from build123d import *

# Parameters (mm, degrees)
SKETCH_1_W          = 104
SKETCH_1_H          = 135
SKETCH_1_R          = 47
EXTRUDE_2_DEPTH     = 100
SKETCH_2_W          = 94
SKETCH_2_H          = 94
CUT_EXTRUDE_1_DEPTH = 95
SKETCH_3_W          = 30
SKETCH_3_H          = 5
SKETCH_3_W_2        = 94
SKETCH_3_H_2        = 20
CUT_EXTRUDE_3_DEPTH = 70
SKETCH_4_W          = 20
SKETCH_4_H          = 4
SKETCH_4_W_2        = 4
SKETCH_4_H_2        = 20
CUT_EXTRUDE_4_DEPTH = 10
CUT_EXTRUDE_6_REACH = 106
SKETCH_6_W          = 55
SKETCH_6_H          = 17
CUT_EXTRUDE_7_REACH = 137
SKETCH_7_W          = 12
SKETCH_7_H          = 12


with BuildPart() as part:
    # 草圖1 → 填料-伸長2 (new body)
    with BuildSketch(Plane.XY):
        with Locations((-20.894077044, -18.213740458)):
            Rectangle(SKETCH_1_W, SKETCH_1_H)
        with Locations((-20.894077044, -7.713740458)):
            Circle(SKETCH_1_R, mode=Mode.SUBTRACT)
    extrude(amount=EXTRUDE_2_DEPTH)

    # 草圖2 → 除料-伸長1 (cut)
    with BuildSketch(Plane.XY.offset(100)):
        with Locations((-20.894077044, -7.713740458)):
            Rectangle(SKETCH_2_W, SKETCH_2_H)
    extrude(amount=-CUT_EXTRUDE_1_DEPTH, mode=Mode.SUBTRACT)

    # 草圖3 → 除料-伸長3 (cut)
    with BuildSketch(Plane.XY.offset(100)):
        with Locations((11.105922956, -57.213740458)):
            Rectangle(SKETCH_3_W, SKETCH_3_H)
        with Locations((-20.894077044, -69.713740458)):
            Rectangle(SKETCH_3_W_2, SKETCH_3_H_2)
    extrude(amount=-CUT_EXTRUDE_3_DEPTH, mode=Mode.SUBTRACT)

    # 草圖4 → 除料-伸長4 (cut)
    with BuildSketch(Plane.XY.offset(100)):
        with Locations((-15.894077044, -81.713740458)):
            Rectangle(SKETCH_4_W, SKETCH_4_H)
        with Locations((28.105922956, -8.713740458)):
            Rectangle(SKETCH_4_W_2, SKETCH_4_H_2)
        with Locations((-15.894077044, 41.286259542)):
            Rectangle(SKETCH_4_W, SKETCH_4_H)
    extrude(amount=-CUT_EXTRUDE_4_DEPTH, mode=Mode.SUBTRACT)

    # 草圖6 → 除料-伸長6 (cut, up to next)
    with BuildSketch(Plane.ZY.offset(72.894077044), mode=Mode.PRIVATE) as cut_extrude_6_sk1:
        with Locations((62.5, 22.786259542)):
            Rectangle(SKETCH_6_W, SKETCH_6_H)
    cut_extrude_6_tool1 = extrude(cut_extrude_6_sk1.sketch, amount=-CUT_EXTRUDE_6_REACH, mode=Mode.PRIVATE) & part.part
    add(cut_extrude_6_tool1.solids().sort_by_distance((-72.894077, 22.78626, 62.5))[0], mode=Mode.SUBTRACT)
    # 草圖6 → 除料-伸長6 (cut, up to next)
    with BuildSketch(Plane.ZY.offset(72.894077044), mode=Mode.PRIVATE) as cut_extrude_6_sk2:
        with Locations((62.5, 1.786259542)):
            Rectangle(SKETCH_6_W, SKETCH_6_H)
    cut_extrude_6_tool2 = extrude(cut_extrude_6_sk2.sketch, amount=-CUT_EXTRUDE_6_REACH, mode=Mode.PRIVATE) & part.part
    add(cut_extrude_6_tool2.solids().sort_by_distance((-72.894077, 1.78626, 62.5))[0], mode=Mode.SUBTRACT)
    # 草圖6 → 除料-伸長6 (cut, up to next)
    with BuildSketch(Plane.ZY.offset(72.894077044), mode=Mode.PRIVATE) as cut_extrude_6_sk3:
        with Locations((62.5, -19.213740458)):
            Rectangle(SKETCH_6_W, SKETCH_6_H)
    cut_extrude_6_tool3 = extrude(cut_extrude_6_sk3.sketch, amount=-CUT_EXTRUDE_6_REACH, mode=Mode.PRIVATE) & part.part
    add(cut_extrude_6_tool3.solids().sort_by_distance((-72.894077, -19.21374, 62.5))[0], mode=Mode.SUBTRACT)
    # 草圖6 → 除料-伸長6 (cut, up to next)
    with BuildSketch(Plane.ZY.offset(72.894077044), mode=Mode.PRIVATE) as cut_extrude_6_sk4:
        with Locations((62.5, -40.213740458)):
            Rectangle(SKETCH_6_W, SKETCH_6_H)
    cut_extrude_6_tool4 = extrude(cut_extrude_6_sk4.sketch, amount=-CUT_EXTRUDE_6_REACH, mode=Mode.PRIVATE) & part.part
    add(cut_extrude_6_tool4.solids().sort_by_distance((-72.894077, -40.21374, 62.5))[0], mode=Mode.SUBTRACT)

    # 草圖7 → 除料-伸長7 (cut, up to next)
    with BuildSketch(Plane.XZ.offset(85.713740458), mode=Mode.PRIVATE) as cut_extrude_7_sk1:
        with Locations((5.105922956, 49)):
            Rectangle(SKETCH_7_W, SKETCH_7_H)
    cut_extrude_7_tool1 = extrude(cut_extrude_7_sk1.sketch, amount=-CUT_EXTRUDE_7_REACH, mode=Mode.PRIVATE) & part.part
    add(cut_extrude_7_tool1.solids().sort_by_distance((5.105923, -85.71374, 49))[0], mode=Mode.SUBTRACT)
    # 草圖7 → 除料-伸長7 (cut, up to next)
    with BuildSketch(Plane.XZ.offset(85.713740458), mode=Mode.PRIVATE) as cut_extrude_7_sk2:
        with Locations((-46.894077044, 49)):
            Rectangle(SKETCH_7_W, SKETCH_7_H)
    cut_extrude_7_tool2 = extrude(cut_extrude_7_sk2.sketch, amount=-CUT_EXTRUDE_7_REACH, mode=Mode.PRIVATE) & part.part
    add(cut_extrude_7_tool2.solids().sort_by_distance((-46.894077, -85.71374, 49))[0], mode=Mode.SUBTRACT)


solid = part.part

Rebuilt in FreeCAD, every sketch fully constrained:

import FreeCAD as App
import Part
import Sketcher
from FreeCAD import Vector

doc = App.newDocument("Part")
body = doc.addObject("PartDesign::Body", "Body")

# Sketch on XY plane
sketch1 = body.newObject("Sketcher::SketchObject", "Sketch")
sketch1.AttachmentSupport = (doc.getObject("XY_Plane"), [""])
sketch1.MapMode = "FlatFace"
sketch1.addGeometry([
    Part.LineSegment(Vector(-72.894077, 49.28626, 0), Vector(-72.894077, -85.71374, 0)),  # 0
    Part.LineSegment(Vector(-72.894077, -85.71374, 0), Vector(31.105923, -85.71374, 0)),  # 1
    Part.LineSegment(Vector(31.105923, -85.71374, 0), Vector(31.105923, 49.28626, 0)),  # 2
    Part.LineSegment(Vector(31.105923, 49.28626, 0), Vector(-72.894077, 49.28626, 0)),  # 3
    Part.Circle(Vector(-20.894077, -7.71374, 0), Vector(0, 0, 1), 47),  # 4
], False)
sketch1.addConstraint([
    Sketcher.Constraint("Coincident", 0, 2, 1, 1),
    Sketcher.Constraint("Coincident", 1, 2, 2, 1),
    Sketcher.Constraint("Coincident", 2, 2, 3, 1),
    Sketcher.Constraint("Coincident", 3, 2, 0, 1),
    Sketcher.Constraint("Vertical", 0),
    Sketcher.Constraint("Horizontal", 1),
    Sketcher.Constraint("Vertical", 2),
    Sketcher.Constraint("Horizontal", 3),
    Sketcher.Constraint("Diameter", 4, 94.0),
    Sketcher.Constraint("DistanceX", 1, 1, 1, 2, 104.0),
    Sketcher.Constraint("DistanceY", 0, 2, 0, 1, 135.0),
    Sketcher.Constraint("DistanceX", 0, 2, 4, 3, 52.0),
    Sketcher.Constraint("DistanceY", 0, 2, 4, 3, 78.0),
    Sketcher.Constraint("DistanceY", 4, 3, -1, 1, 7.71374),
    Sketcher.Constraint("DistanceX", 4, 3, -1, 1, 20.894077),
])
pad1 = body.newObject("PartDesign::Pad", "Pad")
pad1.Profile = sketch1
pad1.Length = 100

# Sketch on XY plane
sketch2 = body.newObject("Sketcher::SketchObject", "Sketch001")
sketch2.AttachmentSupport = (doc.getObject("XY_Plane"), [""])
sketch2.MapMode = "FlatFace"
sketch2.AttachmentOffset = App.Placement(Vector(0, 0, 100), App.Rotation())
sketch2.addGeometry([
    Part.LineSegment(Vector(-67.894077, 39.28626, 0), Vector(-67.894077, -54.71374, 0)),
    Part.LineSegment(Vector(-67.894077, -54.71374, 0), Vector(26.105923, -54.71374, 0)),
    Part.LineSegment(Vector(26.105923, -54.71374, 0), Vector(26.105923, 39.28626, 0)),
    Part.LineSegment(Vector(26.105923, 39.28626, 0), Vector(-67.894077, 39.28626, 0)),
], False)
sketch2.addConstraint([
    Sketcher.Constraint("Coincident", 0, 2, 1, 1),
    Sketcher.Constraint("Coincident", 1, 2, 2, 1),
    Sketcher.Constraint("Coincident", 2, 2, 3, 1),
    Sketcher.Constraint("Coincident", 3, 2, 0, 1),
    Sketcher.Constraint("Vertical", 0),
    Sketcher.Constraint("Horizontal", 1),
    Sketcher.Constraint("Vertical", 2),
    Sketcher.Constraint("Horizontal", 3),
    Sketcher.Constraint("Equal", 3, 0),
    Sketcher.Constraint("DistanceX", 1, 1, 1, 2, 94.0),
    Sketcher.Constraint("DistanceY", 0, 2, -1, 1, 54.71374),
    Sketcher.Constraint("DistanceX", 0, 2, -1, 1, 67.894077),
])
pocket1 = body.newObject("PartDesign::Pocket", "Pocket")
pocket1.Profile = sketch2
pocket1.Length = 95

# Sketch on XY plane
sketch3 = body.newObject("Sketcher::SketchObject", "Sketch002")
sketch3.AttachmentSupport = (doc.getObject("XY_Plane"), [""])
sketch3.MapMode = "FlatFace"
sketch3.AttachmentOffset = App.Placement(Vector(0, 0, 100), App.Rotation())
sketch3.addGeometry([
    Part.LineSegment(Vector(-3.894077, -54.71374, 0), Vector(-3.894077, -59.71374, 0)),  # 0
    Part.LineSegment(Vector(-3.894077, -59.71374, 0), Vector(-67.894077, -59.71374, 0)),  # 1
    Part.LineSegment(Vector(-67.894077, -59.71374, 0), Vector(-67.894077, -79.71374, 0)),  # 2
    Part.LineSegment(Vector(-67.894077, -79.71374, 0), Vector(26.105923, -79.71374, 0)),  # 3
    Part.LineSegment(Vector(26.105923, -79.71374, 0), Vector(26.105923, -54.71374, 0)),  # 4
    Part.LineSegment(Vector(26.105923, -54.71374, 0), Vector(-3.894077, -54.71374, 0)),  # 5
], False)
sketch3.addConstraint([
    Sketcher.Constraint("Coincident", 0, 2, 1, 1),
    Sketcher.Constraint("Coincident", 1, 2, 2, 1),
    Sketcher.Constraint("Coincident", 2, 2, 3, 1),
    Sketcher.Constraint("Coincident", 3, 2, 4, 1),
    Sketcher.Constraint("Coincident", 4, 2, 5, 1),
    Sketcher.Constraint("Coincident", 5, 2, 0, 1),
    Sketcher.Constraint("Vertical", 0),
    Sketcher.Constraint("Horizontal", 1),
    Sketcher.Constraint("Vertical", 2),
    Sketcher.Constraint("Horizontal", 3),
    Sketcher.Constraint("Vertical", 4),
    Sketcher.Constraint("Horizontal", 5),
    Sketcher.Constraint("DistanceX", 1, 2, 1, 1, 64.0),
    Sketcher.Constraint("DistanceX", 3, 1, 3, 2, 94.0),
    Sketcher.Constraint("DistanceY", 0, 2, 0, 1, 5.0),
    Sketcher.Constraint("DistanceY", 2, 2, 2, 1, 20.0),
    Sketcher.Constraint("DistanceY", 0, 2, -1, 1, 59.71374),
    Sketcher.Constraint("DistanceX", 0, 2, -1, 1, 3.894077),
])
pocket2 = body.newObject("PartDesign::Pocket", "Pocket001")
pocket2.Profile = sketch3
pocket2.Length = 70

# Sketch on XY plane
sketch4 = body.newObject("Sketcher::SketchObject", "Sketch003")
sketch4.AttachmentSupport = (doc.getObject("XY_Plane"), [""])
sketch4.MapMode = "FlatFace"
sketch4.AttachmentOffset = App.Placement(Vector(0, 0, 100), App.Rotation())
sketch4.addGeometry([
    Part.LineSegment(Vector(-25.894077, -79.71374, 0), Vector(-25.894077, -83.71374, 0)),  # 0
    Part.LineSegment(Vector(-25.894077, -83.71374, 0), Vector(-5.894077, -83.71374, 0)),  # 1
    Part.LineSegment(Vector(-5.894077, -83.71374, 0), Vector(-5.894077, -79.71374, 0)),  # 2
    Part.LineSegment(Vector(-5.894077, -79.71374, 0), Vector(-25.894077, -79.71374, 0)),  # 3
    Part.LineSegment(Vector(26.105923, 1.28626, 0), Vector(26.105923, -18.71374, 0)),  # 4
    Part.LineSegment(Vector(26.105923, -18.71374, 0), Vector(30.105923, -18.71374, 0)),  # 5
    Part.LineSegment(Vector(30.105923, -18.71374, 0), Vector(30.105923, 1.28626, 0)),  # 6
    Part.LineSegment(Vector(30.105923, 1.28626, 0), Vector(26.105923, 1.28626, 0)),  # 7
    Part.LineSegment(Vector(-25.894077, 43.28626, 0), Vector(-25.894077, 39.28626, 0)),  # 8
    Part.LineSegment(Vector(-25.894077, 39.28626, 0), Vector(-5.894077, 39.28626, 0)),  # 9
    Part.LineSegment(Vector(-5.894077, 39.28626, 0), Vector(-5.894077, 43.28626, 0)),  # 10
    Part.LineSegment(Vector(-5.894077, 43.28626, 0), Vector(-25.894077, 43.28626, 0)),  # 11
], False)
sketch4.addConstraint([
    Sketcher.Constraint("Coincident", 0, 2, 1, 1),
    Sketcher.Constraint("Coincident", 1, 2, 2, 1),
    Sketcher.Constraint("Coincident", 2, 2, 3, 1),
    Sketcher.Constraint("Coincident", 3, 2, 0, 1),
    Sketcher.Constraint("Coincident", 4, 2, 5, 1),
    Sketcher.Constraint("Coincident", 5, 2, 6, 1),
    Sketcher.Constraint("Coincident", 6, 2, 7, 1),
    Sketcher.Constraint("Coincident", 7, 2, 4, 1),
    Sketcher.Constraint("Coincident", 8, 2, 9, 1),
    Sketcher.Constraint("Coincident", 9, 2, 10, 1),
    Sketcher.Constraint("Coincident", 10, 2, 11, 1),
    Sketcher.Constraint("Coincident", 11, 2, 8, 1),
    Sketcher.Constraint("Vertical", 0),
    Sketcher.Constraint("Horizontal", 1),
    Sketcher.Constraint("Vertical", 2),
    Sketcher.Constraint("Horizontal", 3),
    Sketcher.Constraint("Vertical", 4),
    Sketcher.Constraint("Horizontal", 5),
    Sketcher.Constraint("Vertical", 6),
    Sketcher.Constraint("Horizontal", 7),
    Sketcher.Constraint("Vertical", 8),
    Sketcher.Constraint("Horizontal", 9),
    Sketcher.Constraint("Vertical", 10),
    Sketcher.Constraint("Horizontal", 11),
    Sketcher.Constraint("Vertical", 3, 2, 8, 2),
    Sketcher.Constraint("Vertical", 2, 2, 9, 2),
    Sketcher.Constraint("Equal", 7, 0),
    Sketcher.Constraint("Equal", 11, 4),
    Sketcher.Constraint("Equal", 2, 8),
    Sketcher.Constraint("DistanceX", 1, 1, 1, 2, 20.0),
    Sketcher.Constraint("DistanceX", 5, 1, 5, 2, 4.0),
    Sketcher.Constraint("DistanceX", 2, 2, 4, 2, 32.0),
    Sketcher.Constraint("DistanceY", 2, 2, 4, 2, 61.0),
    Sketcher.Constraint("DistanceY", 7, 2, 8, 2, 38.0),
    Sketcher.Constraint("DistanceY", 0, 2, -1, 1, 83.71374),
    Sketcher.Constraint("DistanceX", 0, 2, -1, 1, 25.894077),
])
pocket3 = body.newObject("PartDesign::Pocket", "Pocket002")
pocket3.Profile = sketch4
pocket3.Length = 10

# Sketch on YZ plane
sketch5 = body.newObject("Sketcher::SketchObject", "Sketch004")
sketch5.AttachmentSupport = (doc.getObject("YZ_Plane"), [""])
sketch5.MapMode = "FlatFace"
sketch5.AttachmentOffset = App.Placement(Vector(0, 0, -72.894077), App.Rotation())
sketch5.addGeometry([
    Part.LineSegment(Vector(31.28626, 35, 0), Vector(14.28626, 35, 0)),
    Part.LineSegment(Vector(14.28626, 35, 0), Vector(14.28626, 90, 0)),
    Part.LineSegment(Vector(14.28626, 90, 0), Vector(31.28626, 90, 0)),
    Part.LineSegment(Vector(31.28626, 90, 0), Vector(31.28626, 35, 0)),
], False)
sketch5.addConstraint([
    Sketcher.Constraint("Coincident", 0, 2, 1, 1),
    Sketcher.Constraint("Coincident", 1, 2, 2, 1),
    Sketcher.Constraint("Coincident", 2, 2, 3, 1),
    Sketcher.Constraint("Coincident", 3, 2, 0, 1),
    Sketcher.Constraint("Horizontal", 0),
    Sketcher.Constraint("Vertical", 1),
    Sketcher.Constraint("Horizontal", 2),
    Sketcher.Constraint("Vertical", 3),
    Sketcher.Constraint("DistanceX", 0, 2, 0, 1, 17.0),
    Sketcher.Constraint("DistanceY", 1, 1, 1, 2, 55.0),
    Sketcher.Constraint("DistanceY", -1, 1, 0, 2, 35.0),
    Sketcher.Constraint("DistanceX", -1, 1, 0, 2, 14.28626),
])
pocket4 = body.newObject("PartDesign::Pocket", "Pocket003")
pocket4.Profile = sketch5
pocket4.Type = "UpToFirst"
pocket4.Reversed = True

# Sketch on YZ plane
sketch6 = body.newObject("Sketcher::SketchObject", "Sketch005")
sketch6.AttachmentSupport = (doc.getObject("YZ_Plane"), [""])
sketch6.MapMode = "FlatFace"
sketch6.AttachmentOffset = App.Placement(Vector(0, 0, -72.894077), App.Rotation())
sketch6.addGeometry([
    Part.LineSegment(Vector(10.28626, 35, 0), Vector(-6.71374, 35, 0)),
    Part.LineSegment(Vector(-6.71374, 35, 0), Vector(-6.71374, 90, 0)),
    Part.LineSegment(Vector(-6.71374, 90, 0), Vector(10.28626, 90, 0)),
    Part.LineSegment(Vector(10.28626, 90, 0), Vector(10.28626, 35, 0)),
], False)
sketch6.addConstraint([
    Sketcher.Constraint("Coincident", 0, 2, 1, 1),
    Sketcher.Constraint("Coincident", 1, 2, 2, 1),
    Sketcher.Constraint("Coincident", 2, 2, 3, 1),
    Sketcher.Constraint("Coincident", 3, 2, 0, 1),
    Sketcher.Constraint("Horizontal", 0),
    Sketcher.Constraint("Vertical", 1),
    Sketcher.Constraint("Horizontal", 2),
    Sketcher.Constraint("Vertical", 3),
    Sketcher.Constraint("DistanceX", 0, 2, 0, 1, 17.0),
    Sketcher.Constraint("DistanceY", 1, 1, 1, 2, 55.0),
    Sketcher.Constraint("DistanceY", -1, 1, 0, 2, 35.0),
    Sketcher.Constraint("DistanceX", 0, 2, -1, 1, 6.71374),
])
pocket5 = body.newObject("PartDesign::Pocket", "Pocket004")
pocket5.Profile = sketch6
pocket5.Type = "UpToFirst"
pocket5.Reversed = True

# Sketch on YZ plane
sketch7 = body.newObject("Sketcher::SketchObject", "Sketch006")
sketch7.AttachmentSupport = (doc.getObject("YZ_Plane"), [""])
sketch7.MapMode = "FlatFace"
sketch7.AttachmentOffset = App.Placement(Vector(0, 0, -72.894077), App.Rotation())
sketch7.addGeometry([
    Part.LineSegment(Vector(-10.71374, 35, 0), Vector(-27.71374, 35, 0)),
    Part.LineSegment(Vector(-27.71374, 35, 0), Vector(-27.71374, 90, 0)),
    Part.LineSegment(Vector(-27.71374, 90, 0), Vector(-10.71374, 90, 0)),
    Part.LineSegment(Vector(-10.71374, 90, 0), Vector(-10.71374, 35, 0)),
], False)
sketch7.addConstraint([
    Sketcher.Constraint("Coincident", 0, 2, 1, 1),
    Sketcher.Constraint("Coincident", 1, 2, 2, 1),
    Sketcher.Constraint("Coincident", 2, 2, 3, 1),
    Sketcher.Constraint("Coincident", 3, 2, 0, 1),
    Sketcher.Constraint("Horizontal", 0),
    Sketcher.Constraint("Vertical", 1),
    Sketcher.Constraint("Horizontal", 2),
    Sketcher.Constraint("Vertical", 3),
    Sketcher.Constraint("DistanceX", 0, 2, 0, 1, 17.0),
    Sketcher.Constraint("DistanceY", 1, 1, 1, 2, 55.0),
    Sketcher.Constraint("DistanceY", -1, 1, 0, 2, 35.0),
    Sketcher.Constraint("DistanceX", 0, 2, -1, 1, 27.71374),
])
pocket6 = body.newObject("PartDesign::Pocket", "Pocket005")
pocket6.Profile = sketch7
pocket6.Type = "UpToFirst"
pocket6.Reversed = True

# Sketch on YZ plane
sketch8 = body.newObject("Sketcher::SketchObject", "Sketch007")
sketch8.AttachmentSupport = (doc.getObject("YZ_Plane"), [""])
sketch8.MapMode = "FlatFace"
sketch8.AttachmentOffset = App.Placement(Vector(0, 0, -72.894077), App.Rotation())
sketch8.addGeometry([
    Part.LineSegment(Vector(-31.71374, 35, 0), Vector(-48.71374, 35, 0)),
    Part.LineSegment(Vector(-48.71374, 35, 0), Vector(-48.71374, 90, 0)),
    Part.LineSegment(Vector(-48.71374, 90, 0), Vector(-31.71374, 90, 0)),
    Part.LineSegment(Vector(-31.71374, 90, 0), Vector(-31.71374, 35, 0)),
], False)
sketch8.addConstraint([
    Sketcher.Constraint("Coincident", 0, 2, 1, 1),
    Sketcher.Constraint("Coincident", 1, 2, 2, 1),
    Sketcher.Constraint("Coincident", 2, 2, 3, 1),
    Sketcher.Constraint("Coincident", 3, 2, 0, 1),
    Sketcher.Constraint("Horizontal", 0),
    Sketcher.Constraint("Vertical", 1),
    Sketcher.Constraint("Horizontal", 2),
    Sketcher.Constraint("Vertical", 3),
    Sketcher.Constraint("DistanceX", 0, 2, 0, 1, 17.0),
    Sketcher.Constraint("DistanceY", 1, 1, 1, 2, 55.0),
    Sketcher.Constraint("DistanceY", -1, 1, 0, 2, 35.0),
    Sketcher.Constraint("DistanceX", 0, 2, -1, 1, 48.71374),
])
pocket7 = body.newObject("PartDesign::Pocket", "Pocket006")
pocket7.Profile = sketch8
pocket7.Type = "UpToFirst"
pocket7.Reversed = True

# Sketch on XZ plane
sketch9 = body.newObject("Sketcher::SketchObject", "Sketch008")
sketch9.AttachmentSupport = (doc.getObject("XZ_Plane"), [""])
sketch9.MapMode = "FlatFace"
sketch9.AttachmentOffset = App.Placement(Vector(0, 0, 85.71374), App.Rotation())
sketch9.addGeometry([
    Part.LineSegment(Vector(-0.894077, 55, 0), Vector(-0.894077, 43, 0)),
    Part.LineSegment(Vector(-0.894077, 43, 0), Vector(11.105923, 43, 0)),
    Part.LineSegment(Vector(11.105923, 43, 0), Vector(11.105923, 55, 0)),
    Part.LineSegment(Vector(11.105923, 55, 0), Vector(-0.894077, 55, 0)),
], False)
sketch9.addConstraint([
    Sketcher.Constraint("Coincident", 0, 2, 1, 1),
    Sketcher.Constraint("Coincident", 1, 2, 2, 1),
    Sketcher.Constraint("Coincident", 2, 2, 3, 1),
    Sketcher.Constraint("Coincident", 3, 2, 0, 1),
    Sketcher.Constraint("Vertical", 0),
    Sketcher.Constraint("Horizontal", 1),
    Sketcher.Constraint("Vertical", 2),
    Sketcher.Constraint("Horizontal", 3),
    Sketcher.Constraint("Equal", 3, 0),
    Sketcher.Constraint("DistanceX", 1, 1, 1, 2, 12.0),
    Sketcher.Constraint("DistanceY", -1, 1, 0, 2, 43.0),
    Sketcher.Constraint("DistanceX", 0, 2, -1, 1, 0.894077),
])
pocket8 = body.newObject("PartDesign::Pocket", "Pocket007")
pocket8.Profile = sketch9
pocket8.Type = "UpToFirst"

# Sketch on XZ plane
sketch10 = body.newObject("Sketcher::SketchObject", "Sketch009")
sketch10.AttachmentSupport = (doc.getObject("XZ_Plane"), [""])
sketch10.MapMode = "FlatFace"
sketch10.AttachmentOffset = App.Placement(Vector(0, 0, 85.71374), App.Rotation())
sketch10.addGeometry([
    Part.LineSegment(Vector(-52.894077, 55, 0), Vector(-52.894077, 43, 0)),
    Part.LineSegment(Vector(-52.894077, 43, 0), Vector(-40.894077, 43, 0)),
    Part.LineSegment(Vector(-40.894077, 43, 0), Vector(-40.894077, 55, 0)),
    Part.LineSegment(Vector(-40.894077, 55, 0), Vector(-52.894077, 55, 0)),
], False)
sketch10.addConstraint([
    Sketcher.Constraint("Coincident", 0, 2, 1, 1),
    Sketcher.Constraint("Coincident", 1, 2, 2, 1),
    Sketcher.Constraint("Coincident", 2, 2, 3, 1),
    Sketcher.Constraint("Coincident", 3, 2, 0, 1),
    Sketcher.Constraint("Vertical", 0),
    Sketcher.Constraint("Horizontal", 1),
    Sketcher.Constraint("Vertical", 2),
    Sketcher.Constraint("Horizontal", 3),
    Sketcher.Constraint("Equal", 3, 0),
    Sketcher.Constraint("DistanceX", 1, 1, 1, 2, 12.0),
    Sketcher.Constraint("DistanceY", -1, 1, 0, 2, 43.0),
    Sketcher.Constraint("DistanceX", 0, 2, -1, 1, 52.894077),
])
pocket9 = body.newObject("PartDesign::Pocket", "Pocket008")
pocket9.Profile = sketch10
pocket9.Type = "UpToFirst"

doc.recompute()
